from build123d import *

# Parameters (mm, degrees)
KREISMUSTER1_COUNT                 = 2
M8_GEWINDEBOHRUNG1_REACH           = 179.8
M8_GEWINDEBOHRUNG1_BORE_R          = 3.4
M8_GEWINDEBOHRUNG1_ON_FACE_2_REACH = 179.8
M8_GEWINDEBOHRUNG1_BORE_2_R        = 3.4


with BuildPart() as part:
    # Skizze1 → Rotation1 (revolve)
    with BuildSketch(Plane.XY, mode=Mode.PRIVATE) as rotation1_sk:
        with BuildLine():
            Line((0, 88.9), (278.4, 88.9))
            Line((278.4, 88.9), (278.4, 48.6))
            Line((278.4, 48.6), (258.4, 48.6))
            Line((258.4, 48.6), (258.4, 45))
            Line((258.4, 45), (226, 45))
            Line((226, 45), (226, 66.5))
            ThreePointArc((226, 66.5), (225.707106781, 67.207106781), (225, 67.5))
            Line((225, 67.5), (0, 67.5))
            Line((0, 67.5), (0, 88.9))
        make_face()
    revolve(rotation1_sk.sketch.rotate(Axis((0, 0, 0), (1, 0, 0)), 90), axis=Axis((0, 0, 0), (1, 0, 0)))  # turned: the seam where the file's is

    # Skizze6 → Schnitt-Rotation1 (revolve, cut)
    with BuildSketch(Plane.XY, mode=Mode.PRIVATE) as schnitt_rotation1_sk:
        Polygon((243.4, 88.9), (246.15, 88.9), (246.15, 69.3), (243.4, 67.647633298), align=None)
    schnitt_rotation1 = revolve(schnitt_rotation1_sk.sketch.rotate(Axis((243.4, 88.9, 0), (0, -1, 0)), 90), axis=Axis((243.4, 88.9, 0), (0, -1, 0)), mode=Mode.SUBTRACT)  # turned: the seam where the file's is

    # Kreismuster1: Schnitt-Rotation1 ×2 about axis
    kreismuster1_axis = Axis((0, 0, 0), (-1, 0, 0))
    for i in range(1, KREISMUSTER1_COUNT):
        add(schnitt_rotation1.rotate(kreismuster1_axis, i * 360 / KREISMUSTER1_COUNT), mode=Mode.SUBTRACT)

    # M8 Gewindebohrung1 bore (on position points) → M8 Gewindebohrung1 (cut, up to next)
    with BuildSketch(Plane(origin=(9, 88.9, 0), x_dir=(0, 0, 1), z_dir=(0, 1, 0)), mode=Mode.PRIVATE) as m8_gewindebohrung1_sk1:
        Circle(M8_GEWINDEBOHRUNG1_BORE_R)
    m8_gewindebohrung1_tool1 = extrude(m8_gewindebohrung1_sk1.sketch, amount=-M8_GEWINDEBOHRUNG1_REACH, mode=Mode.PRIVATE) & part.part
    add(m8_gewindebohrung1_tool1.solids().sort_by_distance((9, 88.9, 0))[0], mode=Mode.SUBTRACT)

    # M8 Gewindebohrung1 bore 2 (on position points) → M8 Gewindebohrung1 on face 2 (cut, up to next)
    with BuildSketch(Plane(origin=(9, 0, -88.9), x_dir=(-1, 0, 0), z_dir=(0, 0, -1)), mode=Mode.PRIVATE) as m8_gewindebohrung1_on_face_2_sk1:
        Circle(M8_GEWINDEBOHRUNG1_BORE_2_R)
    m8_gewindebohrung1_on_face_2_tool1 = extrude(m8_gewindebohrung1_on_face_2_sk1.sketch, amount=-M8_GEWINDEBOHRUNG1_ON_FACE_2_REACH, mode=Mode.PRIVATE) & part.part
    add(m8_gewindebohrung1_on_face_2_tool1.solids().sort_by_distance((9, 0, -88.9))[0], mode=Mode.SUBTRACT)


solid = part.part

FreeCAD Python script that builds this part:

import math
import FreeCAD as App
import Part
import Sketcher

V = App.Vector
Q = App.Units.Quantity

doc = App.newDocument("Part")
body = doc.addObject("PartDesign::Body", "Body")

# Sketch on XY plane
sketch1 = body.newObject("Sketcher::SketchObject", "Sketch")
sketch1.AttachmentSupport = (doc.getObject("XY_Plane"), [""])
sketch1.MapMode = "FlatFace"
sketch1.addGeometry([
    Part.LineSegment(V(278.4, 88.9, 0), V(0, 88.9, 0)),  # 0
    Part.LineSegment(V(0, 88.9, 0), V(0, 67.5, 0)),  # 1
    Part.LineSegment(V(0, 67.5, 0), V(225, 67.5, 0)),  # 2
    Part.ArcOfCircle(Part.Circle(V(225, 66.5, 0), V(0, 0, 1), 1), math.radians(0), math.radians(90)),  # 3
    Part.LineSegment(V(226, 66.5, 0), V(226, 45, 0)),  # 4
    Part.LineSegment(V(226, 45, 0), V(258.4, 45, 0)),  # 5
    Part.LineSegment(V(258.4, 45, 0), V(258.4, 48.6, 0)),  # 6
    Part.LineSegment(V(258.4, 48.6, 0), V(278.4, 48.6, 0)),  # 7
    Part.LineSegment(V(278.4, 48.6, 0), V(278.4, 88.9, 0)),  # 8
], False)
sketch1.addConstraint([
    Sketcher.Constraint("Coincident", 0, 2, 1, 1),
    Sketcher.Constraint("Coincident", 1, 2, 2, 1),
    Sketcher.Constraint("Tangent", 2, 2, 3, 2),
    Sketcher.Constraint("Tangent", 3, 1, 4, 1),
    Sketcher.Constraint("Coincident", 4, 2, 5, 1),
    Sketcher.Constraint("Coincident", 5, 2, 6, 1),
    Sketcher.Constraint("Coincident", 6, 2, 7, 1),
    Sketcher.Constraint("Coincident", 7, 2, 8, 1),
    Sketcher.Constraint("Coincident", 8, 2, 0, 1),
    Sketcher.Constraint("Horizontal", 0),
    Sketcher.Constraint("Vertical", 1),
    Sketcher.Constraint("Horizontal", 2),
    Sketcher.Constraint("Vertical", 4),
    Sketcher.Constraint("Horizontal", 5),
    Sketcher.Constraint("Vertical", 6),
    Sketcher.Constraint("Horizontal", 7),
    Sketcher.Constraint("Vertical", 8),
    Sketcher.Constraint("PointOnObject", 0, 2, -2),
    Sketcher.Constraint("Radius", 3, Q("1 mm")),
    Sketcher.Constraint("DistanceX", 2, 1, 2, 2, Q("225 mm")),
    Sketcher.Constraint("DistanceX", 7, 1, 7, 2, Q("20 mm")),
    Sketcher.Constraint("DistanceX", 0, 2, 0, 1, Q("278.4 mm")),
    Sketcher.Constraint("DistanceY", 1, 2, 1, 1, Q("21.4 mm")),
    Sketcher.Constraint("DistanceY", 4, 2, 4, 1, Q("21.5 mm")),
    Sketcher.Constraint("DistanceY", 6, 1, 6, 2, Q("3.6 mm")),
    Sketcher.Constraint("DistanceY", -1, 1, 4, 2, Q("45 mm")),
])
revolution = body.newObject("PartDesign::Revolution", "Revolution")
revolution.Profile = sketch1
revolution.ReferenceAxis = (sketch1, ["H_Axis"])
revolution.Angle = 360

# Sketch on XY plane
sketch2 = body.newObject("Sketcher::SketchObject", "Sketch001")
sketch2.AttachmentSupport = (doc.getObject("XY_Plane"), [""])
sketch2.MapMode = "FlatFace"
sketch2.addGeometry([
    Part.LineSegment(V(246.2, 88.9, 0), V(243.4, 88.9, 0)),
    Part.LineSegment(V(243.4, 88.9, 0), V(243.4, 67.6, 0)),
    Part.LineSegment(V(243.4, 67.6, 0), V(246.2, 69.3, 0)),
    Part.LineSegment(V(246.2, 69.3, 0), V(246.2, 88.9, 0)),
], False)
sketch2.addGeometry(Part.LineSegment(V(243.4, 88.9, 0), V(243.4, 67.6, 0)), True)  # axis
sketch2.addConstraint([
    Sketcher.Constraint("Coincident", 0, 2, 1, 1),
    Sketcher.Constraint("Coincident", 1, 2, 2, 1),
    Sketcher.Constraint("Coincident", 2, 2, 3, 1),
    Sketcher.Constraint("Coincident", 3, 2, 0, 1),
    Sketcher.Constraint("Horizontal", 0),
    Sketcher.Constraint("Vertical", 1),
    Sketcher.Constraint("Vertical", 3),
    Sketcher.Constraint("Vertical", 4),
    Sketcher.Constraint("Coincident", 4, 1, 0, 2),
    Sketcher.Constraint("Equal", 1, 4),
    Sketcher.Constraint("Angle", 2, Q("31 deg")),
    Sketcher.Constraint("DistanceY", 3, 1, 3, 2, Q("19.6 mm")),
    Sketcher.Constraint("DistanceX", 0, 2, 0, 1, Q("2.75 mm")),
    Sketcher.Constraint("DistanceX", -1, 1, 0, 2, Q("243.4 mm")),
    Sketcher.Constraint("DistanceY", -1, 1, 0, 2, Q("88.9 mm")),
])
groove = body.newObject("PartDesign::Groove", "Groove")
groove.Profile = sketch2
groove.ReferenceAxis = (sketch2, ["Axis0"])
groove.Angle = 360
doc.recompute()

polarpattern = body.newObject("PartDesign::PolarPattern", "PolarPattern")
polarpattern.Originals = [groove]
polarpattern.Axis = (doc.getObject("X_Axis"), [""])
polarpattern.Angle = 360
polarpattern.Occurrences = 2
body.Tip = polarpattern

# Sketch on XZ plane
sketch3 = body.newObject("Sketcher::SketchObject", "Sketch002")
sketch3.AttachmentSupport = (doc.getObject("XZ_Plane"), [""])
sketch3.MapMode = "FlatFace"
sketch3.AttachmentOffset = App.Placement(V(0, 0, -88.9), App.Rotation())
sketch3.addGeometry(Part.Circle(V(9, 0, 0), V(0, 0, 1), 3.4), False)
sketch3.addConstraint([
    Sketcher.Constraint("PointOnObject", 0, 3, -1),
    Sketcher.Constraint("Diameter", 0, Q("6.8 mm")),
    Sketcher.Constraint("DistanceX", -1, 1, 0, 3, Q("9 mm")),
])
pocket1 = body.newObject("PartDesign::Pocket", "Pocket")
pocket1.Profile = sketch3
pocket1.Length = 21.485684
pocket1.Reversed = True

# Sketch on XY plane
sketch4 = body.newObject("Sketcher::SketchObject", "Sketch003")
sketch4.AttachmentSupport = (doc.getObject("XY_Plane"), [""])
sketch4.MapMode = "FlatFace"
sketch4.AttachmentOffset = App.Placement(V(0, 0, -88.9), App.Rotation())
sketch4.addGeometry(Part.Circle(V(9, 0, 0), V(0, 0, 1), 3.4), False)
sketch4.addConstraint([
    Sketcher.Constraint("PointOnObject", 0, 3, -1),
    Sketcher.Constraint("Diameter", 0, Q("6.8 mm")),
    Sketcher.Constraint("DistanceX", -1, 1, 0, 3, Q("9 mm")),
])
pocket2 = body.newObject("PartDesign::Pocket", "Pocket001")
pocket2.Profile = sketch4
pocket2.Type = "UpToFirst"
pocket2.Reversed = True

doc.recompute()
